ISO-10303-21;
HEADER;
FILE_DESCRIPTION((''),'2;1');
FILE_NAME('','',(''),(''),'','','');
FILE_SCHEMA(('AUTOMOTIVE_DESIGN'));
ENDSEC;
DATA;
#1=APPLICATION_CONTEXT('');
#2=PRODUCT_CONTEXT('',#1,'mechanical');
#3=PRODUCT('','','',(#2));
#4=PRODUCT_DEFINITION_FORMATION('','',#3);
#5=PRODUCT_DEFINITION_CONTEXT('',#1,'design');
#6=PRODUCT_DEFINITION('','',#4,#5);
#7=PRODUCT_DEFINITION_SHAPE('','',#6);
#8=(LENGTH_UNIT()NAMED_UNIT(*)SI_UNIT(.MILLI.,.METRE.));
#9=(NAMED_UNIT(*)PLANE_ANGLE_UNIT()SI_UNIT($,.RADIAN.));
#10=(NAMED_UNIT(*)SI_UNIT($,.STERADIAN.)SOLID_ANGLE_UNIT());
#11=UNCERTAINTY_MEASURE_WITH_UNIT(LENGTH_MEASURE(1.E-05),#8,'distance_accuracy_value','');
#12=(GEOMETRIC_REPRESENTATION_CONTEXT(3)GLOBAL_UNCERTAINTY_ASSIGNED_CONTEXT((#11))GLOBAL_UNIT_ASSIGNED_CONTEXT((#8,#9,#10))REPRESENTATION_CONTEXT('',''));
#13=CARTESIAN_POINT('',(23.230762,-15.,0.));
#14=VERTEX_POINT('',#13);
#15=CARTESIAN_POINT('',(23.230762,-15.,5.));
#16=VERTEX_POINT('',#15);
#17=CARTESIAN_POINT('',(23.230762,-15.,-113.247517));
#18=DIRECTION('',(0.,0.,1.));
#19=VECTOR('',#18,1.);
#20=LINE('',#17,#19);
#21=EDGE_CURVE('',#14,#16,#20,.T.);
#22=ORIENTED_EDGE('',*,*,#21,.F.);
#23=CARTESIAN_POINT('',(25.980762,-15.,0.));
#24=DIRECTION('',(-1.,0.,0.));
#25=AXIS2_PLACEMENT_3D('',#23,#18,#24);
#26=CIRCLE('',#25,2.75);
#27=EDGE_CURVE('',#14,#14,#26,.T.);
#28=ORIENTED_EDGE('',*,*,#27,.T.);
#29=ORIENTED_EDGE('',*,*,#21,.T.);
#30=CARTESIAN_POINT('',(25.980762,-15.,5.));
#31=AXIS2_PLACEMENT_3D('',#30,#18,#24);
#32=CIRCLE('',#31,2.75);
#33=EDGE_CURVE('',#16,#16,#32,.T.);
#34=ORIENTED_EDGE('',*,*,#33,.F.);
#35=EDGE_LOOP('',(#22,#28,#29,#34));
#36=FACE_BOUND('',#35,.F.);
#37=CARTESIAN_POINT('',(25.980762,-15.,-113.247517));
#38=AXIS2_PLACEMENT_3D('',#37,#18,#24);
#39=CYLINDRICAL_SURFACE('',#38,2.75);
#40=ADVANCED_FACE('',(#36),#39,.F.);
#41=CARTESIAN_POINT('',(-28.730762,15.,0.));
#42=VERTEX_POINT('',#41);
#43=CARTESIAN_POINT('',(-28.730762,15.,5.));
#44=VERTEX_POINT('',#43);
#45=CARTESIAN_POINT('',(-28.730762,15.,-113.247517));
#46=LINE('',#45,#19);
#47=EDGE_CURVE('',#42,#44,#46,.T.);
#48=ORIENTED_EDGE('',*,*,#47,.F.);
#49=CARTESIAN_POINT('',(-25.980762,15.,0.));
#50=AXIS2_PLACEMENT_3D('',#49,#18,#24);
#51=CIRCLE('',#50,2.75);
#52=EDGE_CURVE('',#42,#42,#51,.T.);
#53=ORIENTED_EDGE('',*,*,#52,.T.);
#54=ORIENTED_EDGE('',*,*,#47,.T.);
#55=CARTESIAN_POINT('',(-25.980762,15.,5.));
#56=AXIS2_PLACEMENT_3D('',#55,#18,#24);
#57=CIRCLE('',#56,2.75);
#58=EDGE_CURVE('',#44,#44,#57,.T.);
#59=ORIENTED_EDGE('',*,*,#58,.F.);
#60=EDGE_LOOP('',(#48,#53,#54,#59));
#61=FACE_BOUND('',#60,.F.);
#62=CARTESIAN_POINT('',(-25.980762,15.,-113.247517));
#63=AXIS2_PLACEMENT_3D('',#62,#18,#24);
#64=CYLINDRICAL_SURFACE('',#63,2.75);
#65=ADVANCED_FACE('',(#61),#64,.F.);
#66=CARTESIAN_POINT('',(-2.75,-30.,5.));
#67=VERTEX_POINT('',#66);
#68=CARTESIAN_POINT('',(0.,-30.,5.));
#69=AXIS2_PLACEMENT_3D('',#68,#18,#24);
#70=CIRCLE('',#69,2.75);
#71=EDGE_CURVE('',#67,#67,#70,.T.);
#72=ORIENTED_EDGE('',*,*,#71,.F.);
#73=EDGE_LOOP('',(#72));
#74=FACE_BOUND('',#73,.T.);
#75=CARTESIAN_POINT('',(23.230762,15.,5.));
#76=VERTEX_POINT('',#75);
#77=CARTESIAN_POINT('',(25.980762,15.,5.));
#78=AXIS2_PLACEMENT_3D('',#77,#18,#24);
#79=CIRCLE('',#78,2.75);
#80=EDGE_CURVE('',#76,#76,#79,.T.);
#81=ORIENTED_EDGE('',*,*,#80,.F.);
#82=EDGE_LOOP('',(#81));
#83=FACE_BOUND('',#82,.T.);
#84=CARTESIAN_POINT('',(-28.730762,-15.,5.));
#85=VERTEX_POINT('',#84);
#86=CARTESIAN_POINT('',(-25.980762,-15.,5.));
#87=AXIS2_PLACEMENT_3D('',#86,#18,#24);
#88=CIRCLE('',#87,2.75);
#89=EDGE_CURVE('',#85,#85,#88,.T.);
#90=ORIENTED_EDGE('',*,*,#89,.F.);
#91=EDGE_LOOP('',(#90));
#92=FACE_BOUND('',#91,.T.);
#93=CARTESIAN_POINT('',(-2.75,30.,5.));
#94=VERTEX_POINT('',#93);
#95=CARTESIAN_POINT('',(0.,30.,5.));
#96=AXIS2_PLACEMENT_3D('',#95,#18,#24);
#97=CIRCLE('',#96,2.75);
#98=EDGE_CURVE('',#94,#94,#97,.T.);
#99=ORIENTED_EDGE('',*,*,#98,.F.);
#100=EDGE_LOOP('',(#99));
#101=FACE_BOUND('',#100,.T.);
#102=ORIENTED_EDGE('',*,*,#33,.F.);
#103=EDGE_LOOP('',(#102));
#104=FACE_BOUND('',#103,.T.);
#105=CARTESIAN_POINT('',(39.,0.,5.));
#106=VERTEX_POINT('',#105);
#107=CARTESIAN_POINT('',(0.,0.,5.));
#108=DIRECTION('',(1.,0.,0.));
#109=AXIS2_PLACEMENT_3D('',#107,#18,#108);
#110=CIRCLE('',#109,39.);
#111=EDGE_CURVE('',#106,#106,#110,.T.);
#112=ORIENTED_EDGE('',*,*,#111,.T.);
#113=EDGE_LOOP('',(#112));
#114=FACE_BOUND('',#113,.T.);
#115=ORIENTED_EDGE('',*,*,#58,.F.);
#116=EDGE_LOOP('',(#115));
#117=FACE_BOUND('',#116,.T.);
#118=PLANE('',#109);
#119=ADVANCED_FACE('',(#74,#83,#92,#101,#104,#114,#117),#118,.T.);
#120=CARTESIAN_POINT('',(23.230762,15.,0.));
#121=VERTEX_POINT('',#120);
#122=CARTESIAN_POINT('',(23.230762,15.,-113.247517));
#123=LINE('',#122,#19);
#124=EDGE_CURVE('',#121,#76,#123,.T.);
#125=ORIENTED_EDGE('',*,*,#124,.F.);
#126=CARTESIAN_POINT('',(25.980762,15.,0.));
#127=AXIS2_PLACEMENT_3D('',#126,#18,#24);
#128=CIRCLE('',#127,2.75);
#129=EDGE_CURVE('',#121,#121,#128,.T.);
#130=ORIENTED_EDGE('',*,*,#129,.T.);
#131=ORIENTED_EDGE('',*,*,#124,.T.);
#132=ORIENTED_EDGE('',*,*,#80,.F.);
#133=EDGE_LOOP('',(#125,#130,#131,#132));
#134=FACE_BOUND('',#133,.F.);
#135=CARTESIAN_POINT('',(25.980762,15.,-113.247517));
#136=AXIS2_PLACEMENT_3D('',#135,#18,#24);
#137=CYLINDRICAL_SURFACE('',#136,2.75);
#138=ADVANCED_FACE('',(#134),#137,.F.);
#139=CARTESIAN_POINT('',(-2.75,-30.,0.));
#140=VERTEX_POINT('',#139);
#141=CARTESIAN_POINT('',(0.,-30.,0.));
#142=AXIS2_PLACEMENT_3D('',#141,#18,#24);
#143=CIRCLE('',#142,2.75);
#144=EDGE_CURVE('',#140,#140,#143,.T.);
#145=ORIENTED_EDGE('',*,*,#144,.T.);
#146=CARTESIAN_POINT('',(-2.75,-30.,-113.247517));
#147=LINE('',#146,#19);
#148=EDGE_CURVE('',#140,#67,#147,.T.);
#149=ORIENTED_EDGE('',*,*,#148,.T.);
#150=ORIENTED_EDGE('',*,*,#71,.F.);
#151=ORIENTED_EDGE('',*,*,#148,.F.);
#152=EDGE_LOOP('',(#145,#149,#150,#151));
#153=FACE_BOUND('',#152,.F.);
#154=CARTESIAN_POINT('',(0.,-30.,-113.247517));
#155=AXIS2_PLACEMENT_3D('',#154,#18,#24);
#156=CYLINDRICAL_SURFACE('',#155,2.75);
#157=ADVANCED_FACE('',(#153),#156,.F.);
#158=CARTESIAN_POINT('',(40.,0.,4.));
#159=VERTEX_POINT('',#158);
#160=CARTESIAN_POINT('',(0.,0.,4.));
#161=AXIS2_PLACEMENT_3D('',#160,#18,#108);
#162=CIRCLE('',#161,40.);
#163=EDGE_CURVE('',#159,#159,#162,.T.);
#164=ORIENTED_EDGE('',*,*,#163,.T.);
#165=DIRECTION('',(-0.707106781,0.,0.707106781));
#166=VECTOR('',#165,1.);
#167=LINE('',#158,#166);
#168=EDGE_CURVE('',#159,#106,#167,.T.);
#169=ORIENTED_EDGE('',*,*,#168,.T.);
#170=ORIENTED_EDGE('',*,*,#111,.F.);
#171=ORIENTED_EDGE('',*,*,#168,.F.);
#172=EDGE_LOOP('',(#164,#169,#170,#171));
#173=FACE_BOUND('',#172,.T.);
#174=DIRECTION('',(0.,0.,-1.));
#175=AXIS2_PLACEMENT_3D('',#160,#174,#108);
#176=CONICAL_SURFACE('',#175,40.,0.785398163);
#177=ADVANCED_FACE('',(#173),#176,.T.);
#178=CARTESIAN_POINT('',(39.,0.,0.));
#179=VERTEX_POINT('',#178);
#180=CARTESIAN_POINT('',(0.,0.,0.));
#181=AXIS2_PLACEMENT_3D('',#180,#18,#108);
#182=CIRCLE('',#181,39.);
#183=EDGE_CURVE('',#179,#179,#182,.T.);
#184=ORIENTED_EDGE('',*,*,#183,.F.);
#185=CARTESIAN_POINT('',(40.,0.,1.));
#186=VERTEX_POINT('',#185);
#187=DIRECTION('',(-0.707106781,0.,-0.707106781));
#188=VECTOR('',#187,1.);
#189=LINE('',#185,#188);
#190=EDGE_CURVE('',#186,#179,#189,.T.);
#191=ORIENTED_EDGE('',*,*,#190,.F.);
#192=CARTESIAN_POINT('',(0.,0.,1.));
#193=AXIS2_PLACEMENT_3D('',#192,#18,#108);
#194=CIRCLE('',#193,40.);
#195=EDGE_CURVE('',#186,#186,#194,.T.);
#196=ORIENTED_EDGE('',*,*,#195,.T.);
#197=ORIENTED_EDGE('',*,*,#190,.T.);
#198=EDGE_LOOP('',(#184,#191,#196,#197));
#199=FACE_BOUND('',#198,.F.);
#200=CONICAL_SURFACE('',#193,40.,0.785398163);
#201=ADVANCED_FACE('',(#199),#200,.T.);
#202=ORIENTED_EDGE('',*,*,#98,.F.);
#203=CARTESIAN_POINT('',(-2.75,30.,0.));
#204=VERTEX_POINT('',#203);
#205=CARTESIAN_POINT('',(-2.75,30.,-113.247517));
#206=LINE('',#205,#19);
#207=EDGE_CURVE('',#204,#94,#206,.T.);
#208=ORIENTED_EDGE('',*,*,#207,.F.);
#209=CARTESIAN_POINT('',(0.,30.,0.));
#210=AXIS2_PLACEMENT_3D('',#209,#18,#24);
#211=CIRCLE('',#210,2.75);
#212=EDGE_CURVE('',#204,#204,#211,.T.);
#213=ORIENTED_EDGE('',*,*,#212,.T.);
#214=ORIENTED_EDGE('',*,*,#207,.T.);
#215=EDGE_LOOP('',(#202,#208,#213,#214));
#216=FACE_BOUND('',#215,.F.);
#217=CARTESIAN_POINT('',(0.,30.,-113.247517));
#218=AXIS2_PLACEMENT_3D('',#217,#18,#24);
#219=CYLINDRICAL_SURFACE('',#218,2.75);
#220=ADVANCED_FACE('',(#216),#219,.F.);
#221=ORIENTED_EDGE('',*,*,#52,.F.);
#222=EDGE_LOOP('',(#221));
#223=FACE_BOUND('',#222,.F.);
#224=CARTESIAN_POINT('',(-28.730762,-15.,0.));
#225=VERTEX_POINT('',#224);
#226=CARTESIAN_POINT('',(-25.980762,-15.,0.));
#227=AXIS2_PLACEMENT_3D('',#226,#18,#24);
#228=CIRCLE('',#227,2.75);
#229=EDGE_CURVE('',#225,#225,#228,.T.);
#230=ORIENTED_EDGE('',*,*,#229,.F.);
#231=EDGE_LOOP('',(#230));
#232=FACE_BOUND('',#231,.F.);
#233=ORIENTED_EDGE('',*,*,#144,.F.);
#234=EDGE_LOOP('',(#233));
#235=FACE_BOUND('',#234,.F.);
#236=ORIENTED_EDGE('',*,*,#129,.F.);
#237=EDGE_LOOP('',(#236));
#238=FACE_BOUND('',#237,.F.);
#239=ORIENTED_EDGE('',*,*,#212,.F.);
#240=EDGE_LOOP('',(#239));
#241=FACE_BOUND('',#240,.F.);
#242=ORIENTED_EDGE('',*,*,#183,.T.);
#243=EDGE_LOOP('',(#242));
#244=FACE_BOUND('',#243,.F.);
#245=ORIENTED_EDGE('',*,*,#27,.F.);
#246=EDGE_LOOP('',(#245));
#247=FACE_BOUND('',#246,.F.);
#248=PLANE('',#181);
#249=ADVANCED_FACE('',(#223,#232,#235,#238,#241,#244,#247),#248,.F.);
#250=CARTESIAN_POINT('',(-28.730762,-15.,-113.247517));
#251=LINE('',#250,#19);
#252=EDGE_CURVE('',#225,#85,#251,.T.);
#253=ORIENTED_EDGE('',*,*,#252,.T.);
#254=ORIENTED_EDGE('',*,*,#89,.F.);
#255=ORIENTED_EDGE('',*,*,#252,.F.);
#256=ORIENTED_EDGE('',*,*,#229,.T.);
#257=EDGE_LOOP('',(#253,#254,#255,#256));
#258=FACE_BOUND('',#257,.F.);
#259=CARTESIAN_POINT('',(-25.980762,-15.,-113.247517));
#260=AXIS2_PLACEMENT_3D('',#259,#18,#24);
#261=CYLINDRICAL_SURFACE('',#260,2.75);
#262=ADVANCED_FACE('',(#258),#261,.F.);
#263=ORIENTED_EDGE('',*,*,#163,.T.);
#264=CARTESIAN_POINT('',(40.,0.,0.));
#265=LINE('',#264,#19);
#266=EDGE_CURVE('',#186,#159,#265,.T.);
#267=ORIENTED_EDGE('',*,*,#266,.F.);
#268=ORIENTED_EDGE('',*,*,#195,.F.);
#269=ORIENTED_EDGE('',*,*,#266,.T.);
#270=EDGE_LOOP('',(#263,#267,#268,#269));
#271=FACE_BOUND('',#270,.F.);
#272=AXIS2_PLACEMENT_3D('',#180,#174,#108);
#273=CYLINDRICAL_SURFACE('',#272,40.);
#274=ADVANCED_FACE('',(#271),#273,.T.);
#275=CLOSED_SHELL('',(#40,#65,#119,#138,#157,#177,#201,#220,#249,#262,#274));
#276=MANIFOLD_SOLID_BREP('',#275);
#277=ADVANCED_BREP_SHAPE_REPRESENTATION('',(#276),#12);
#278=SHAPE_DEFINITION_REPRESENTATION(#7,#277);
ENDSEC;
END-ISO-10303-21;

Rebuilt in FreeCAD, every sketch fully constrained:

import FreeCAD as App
import Part
import Sketcher


def edges_at(feature, points):
    """Names of the edges that pass closest to the given points."""
    edges = feature.Shape.Edges
    near = lambda p: min(range(len(edges)), key=lambda i: edges[i].distToShape(Part.Vertex(*p))[0])
    return sorted({f"Edge{near(p) + 1}" for p in points})

doc = App.newDocument("Part")
body = doc.addObject("PartDesign::Body", "Body")

# Sketch on XY plane
sketch1 = body.newObject("Sketcher::SketchObject", "Sketch")
sketch1.AttachmentSupport = (doc.getObject("XY_Plane"), [""])
sketch1.MapMode = "FlatFace"
sketch1.addGeometry(Part.Circle(App.Vector(0, 0, 0), App.Vector(0, 0, 1), 40), False)
sketch1.addConstraint(Sketcher.Constraint("Coincident", 0, 3, -1, 1))
sketch1.addConstraint(Sketcher.Constraint("Diameter", 0, 80.0))
pad1 = body.newObject("PartDesign::Pad", "Pad")
pad1.Profile = sketch1
pad1.Length = 5

# Sketch on XY plane
sketch2 = body.newObject("Sketcher::SketchObject", "Sketch001")
sketch2.AttachmentSupport = (doc.getObject("XY_Plane"), [""])
sketch2.MapMode = "FlatFace"
sketch2.addGeometry(Part.Circle(App.Vector(0, -30, 0), App.Vector(0, 0, 1), 2.8), False)
sketch2.addGeometry(Part.Circle(App.Vector(26, 15, 0), App.Vector(0, 0, 1), 2.8), False)
sketch2.addGeometry(Part.Circle(App.Vector(-26, 15, 0), App.Vector(0, 0, 1), 2.8), False)
sketch2.addGeometry(Part.Circle(App.Vector(0, 30, 0), App.Vector(0, 0, 1), 2.8), False)
sketch2.addGeometry(Part.Circle(App.Vector(26, -15, 0), App.Vector(0, 0, 1), 2.8), False)
sketch2.addGeometry(Part.Circle(App.Vector(-26, -15, 0), App.Vector(0, 0, 1), 2.8), False)
sketch2.addConstraint(Sketcher.Constraint("Equal", 0, 1))
sketch2.addConstraint(Sketcher.Constraint("Equal", 1, 2))
sketch2.addConstraint(Sketcher.Constraint("Equal", 2, 3))
sketch2.addConstraint(Sketcher.Constraint("Equal", 3, 4))
sketch2.addConstraint(Sketcher.Constraint("Equal", 4, 5))
sketch2.addConstraint(Sketcher.Constraint("Symmetric", 0, 3, 3, 3, -1, 1))
sketch2.addConstraint(Sketcher.Constraint("Symmetric", 2, 3, 4, 3, -1, 1))
sketch2.addConstraint(Sketcher.Constraint("Symmetric", 1, 3, 5, 3, -1, 1))
sketch2.addConstraint(Sketcher.Constraint("Symmetric", 1, 3, 2, 3, -2))
sketch2.addConstraint(Sketcher.Constraint("PointOnObject", 0, 3, -2))
sketch2.addConstraint(Sketcher.Constraint("Diameter", 0, 5.5))
sketch2.addConstraint(Sketcher.Constraint("DistanceY", 0, 3, -1, 1, 30.0))
sketch2.addConstraint(Sketcher.Constraint("DistanceY", -1, 1, 1, 3, 15.0))
sketch2.addConstraint(Sketcher.Constraint("DistanceX", -1, 1, 1, 3, 25.980762))
doc.recompute()
hole = body.newObject("PartDesign::Hole", "Hole")
hole.Profile = sketch2
hole.ThreadType = "None"
hole.Diameter = 5.5
hole.DepthType = "ThroughAll"
hole.Reversed = True
doc.recompute()

chamfer = body.newObject("PartDesign::Chamfer", "Chamfer")
chamfer.Base = (hole, edges_at(hole, [(-40, 0, 5), (-40, 0, 0)]))
chamfer.Size = 1

doc.recompute()
